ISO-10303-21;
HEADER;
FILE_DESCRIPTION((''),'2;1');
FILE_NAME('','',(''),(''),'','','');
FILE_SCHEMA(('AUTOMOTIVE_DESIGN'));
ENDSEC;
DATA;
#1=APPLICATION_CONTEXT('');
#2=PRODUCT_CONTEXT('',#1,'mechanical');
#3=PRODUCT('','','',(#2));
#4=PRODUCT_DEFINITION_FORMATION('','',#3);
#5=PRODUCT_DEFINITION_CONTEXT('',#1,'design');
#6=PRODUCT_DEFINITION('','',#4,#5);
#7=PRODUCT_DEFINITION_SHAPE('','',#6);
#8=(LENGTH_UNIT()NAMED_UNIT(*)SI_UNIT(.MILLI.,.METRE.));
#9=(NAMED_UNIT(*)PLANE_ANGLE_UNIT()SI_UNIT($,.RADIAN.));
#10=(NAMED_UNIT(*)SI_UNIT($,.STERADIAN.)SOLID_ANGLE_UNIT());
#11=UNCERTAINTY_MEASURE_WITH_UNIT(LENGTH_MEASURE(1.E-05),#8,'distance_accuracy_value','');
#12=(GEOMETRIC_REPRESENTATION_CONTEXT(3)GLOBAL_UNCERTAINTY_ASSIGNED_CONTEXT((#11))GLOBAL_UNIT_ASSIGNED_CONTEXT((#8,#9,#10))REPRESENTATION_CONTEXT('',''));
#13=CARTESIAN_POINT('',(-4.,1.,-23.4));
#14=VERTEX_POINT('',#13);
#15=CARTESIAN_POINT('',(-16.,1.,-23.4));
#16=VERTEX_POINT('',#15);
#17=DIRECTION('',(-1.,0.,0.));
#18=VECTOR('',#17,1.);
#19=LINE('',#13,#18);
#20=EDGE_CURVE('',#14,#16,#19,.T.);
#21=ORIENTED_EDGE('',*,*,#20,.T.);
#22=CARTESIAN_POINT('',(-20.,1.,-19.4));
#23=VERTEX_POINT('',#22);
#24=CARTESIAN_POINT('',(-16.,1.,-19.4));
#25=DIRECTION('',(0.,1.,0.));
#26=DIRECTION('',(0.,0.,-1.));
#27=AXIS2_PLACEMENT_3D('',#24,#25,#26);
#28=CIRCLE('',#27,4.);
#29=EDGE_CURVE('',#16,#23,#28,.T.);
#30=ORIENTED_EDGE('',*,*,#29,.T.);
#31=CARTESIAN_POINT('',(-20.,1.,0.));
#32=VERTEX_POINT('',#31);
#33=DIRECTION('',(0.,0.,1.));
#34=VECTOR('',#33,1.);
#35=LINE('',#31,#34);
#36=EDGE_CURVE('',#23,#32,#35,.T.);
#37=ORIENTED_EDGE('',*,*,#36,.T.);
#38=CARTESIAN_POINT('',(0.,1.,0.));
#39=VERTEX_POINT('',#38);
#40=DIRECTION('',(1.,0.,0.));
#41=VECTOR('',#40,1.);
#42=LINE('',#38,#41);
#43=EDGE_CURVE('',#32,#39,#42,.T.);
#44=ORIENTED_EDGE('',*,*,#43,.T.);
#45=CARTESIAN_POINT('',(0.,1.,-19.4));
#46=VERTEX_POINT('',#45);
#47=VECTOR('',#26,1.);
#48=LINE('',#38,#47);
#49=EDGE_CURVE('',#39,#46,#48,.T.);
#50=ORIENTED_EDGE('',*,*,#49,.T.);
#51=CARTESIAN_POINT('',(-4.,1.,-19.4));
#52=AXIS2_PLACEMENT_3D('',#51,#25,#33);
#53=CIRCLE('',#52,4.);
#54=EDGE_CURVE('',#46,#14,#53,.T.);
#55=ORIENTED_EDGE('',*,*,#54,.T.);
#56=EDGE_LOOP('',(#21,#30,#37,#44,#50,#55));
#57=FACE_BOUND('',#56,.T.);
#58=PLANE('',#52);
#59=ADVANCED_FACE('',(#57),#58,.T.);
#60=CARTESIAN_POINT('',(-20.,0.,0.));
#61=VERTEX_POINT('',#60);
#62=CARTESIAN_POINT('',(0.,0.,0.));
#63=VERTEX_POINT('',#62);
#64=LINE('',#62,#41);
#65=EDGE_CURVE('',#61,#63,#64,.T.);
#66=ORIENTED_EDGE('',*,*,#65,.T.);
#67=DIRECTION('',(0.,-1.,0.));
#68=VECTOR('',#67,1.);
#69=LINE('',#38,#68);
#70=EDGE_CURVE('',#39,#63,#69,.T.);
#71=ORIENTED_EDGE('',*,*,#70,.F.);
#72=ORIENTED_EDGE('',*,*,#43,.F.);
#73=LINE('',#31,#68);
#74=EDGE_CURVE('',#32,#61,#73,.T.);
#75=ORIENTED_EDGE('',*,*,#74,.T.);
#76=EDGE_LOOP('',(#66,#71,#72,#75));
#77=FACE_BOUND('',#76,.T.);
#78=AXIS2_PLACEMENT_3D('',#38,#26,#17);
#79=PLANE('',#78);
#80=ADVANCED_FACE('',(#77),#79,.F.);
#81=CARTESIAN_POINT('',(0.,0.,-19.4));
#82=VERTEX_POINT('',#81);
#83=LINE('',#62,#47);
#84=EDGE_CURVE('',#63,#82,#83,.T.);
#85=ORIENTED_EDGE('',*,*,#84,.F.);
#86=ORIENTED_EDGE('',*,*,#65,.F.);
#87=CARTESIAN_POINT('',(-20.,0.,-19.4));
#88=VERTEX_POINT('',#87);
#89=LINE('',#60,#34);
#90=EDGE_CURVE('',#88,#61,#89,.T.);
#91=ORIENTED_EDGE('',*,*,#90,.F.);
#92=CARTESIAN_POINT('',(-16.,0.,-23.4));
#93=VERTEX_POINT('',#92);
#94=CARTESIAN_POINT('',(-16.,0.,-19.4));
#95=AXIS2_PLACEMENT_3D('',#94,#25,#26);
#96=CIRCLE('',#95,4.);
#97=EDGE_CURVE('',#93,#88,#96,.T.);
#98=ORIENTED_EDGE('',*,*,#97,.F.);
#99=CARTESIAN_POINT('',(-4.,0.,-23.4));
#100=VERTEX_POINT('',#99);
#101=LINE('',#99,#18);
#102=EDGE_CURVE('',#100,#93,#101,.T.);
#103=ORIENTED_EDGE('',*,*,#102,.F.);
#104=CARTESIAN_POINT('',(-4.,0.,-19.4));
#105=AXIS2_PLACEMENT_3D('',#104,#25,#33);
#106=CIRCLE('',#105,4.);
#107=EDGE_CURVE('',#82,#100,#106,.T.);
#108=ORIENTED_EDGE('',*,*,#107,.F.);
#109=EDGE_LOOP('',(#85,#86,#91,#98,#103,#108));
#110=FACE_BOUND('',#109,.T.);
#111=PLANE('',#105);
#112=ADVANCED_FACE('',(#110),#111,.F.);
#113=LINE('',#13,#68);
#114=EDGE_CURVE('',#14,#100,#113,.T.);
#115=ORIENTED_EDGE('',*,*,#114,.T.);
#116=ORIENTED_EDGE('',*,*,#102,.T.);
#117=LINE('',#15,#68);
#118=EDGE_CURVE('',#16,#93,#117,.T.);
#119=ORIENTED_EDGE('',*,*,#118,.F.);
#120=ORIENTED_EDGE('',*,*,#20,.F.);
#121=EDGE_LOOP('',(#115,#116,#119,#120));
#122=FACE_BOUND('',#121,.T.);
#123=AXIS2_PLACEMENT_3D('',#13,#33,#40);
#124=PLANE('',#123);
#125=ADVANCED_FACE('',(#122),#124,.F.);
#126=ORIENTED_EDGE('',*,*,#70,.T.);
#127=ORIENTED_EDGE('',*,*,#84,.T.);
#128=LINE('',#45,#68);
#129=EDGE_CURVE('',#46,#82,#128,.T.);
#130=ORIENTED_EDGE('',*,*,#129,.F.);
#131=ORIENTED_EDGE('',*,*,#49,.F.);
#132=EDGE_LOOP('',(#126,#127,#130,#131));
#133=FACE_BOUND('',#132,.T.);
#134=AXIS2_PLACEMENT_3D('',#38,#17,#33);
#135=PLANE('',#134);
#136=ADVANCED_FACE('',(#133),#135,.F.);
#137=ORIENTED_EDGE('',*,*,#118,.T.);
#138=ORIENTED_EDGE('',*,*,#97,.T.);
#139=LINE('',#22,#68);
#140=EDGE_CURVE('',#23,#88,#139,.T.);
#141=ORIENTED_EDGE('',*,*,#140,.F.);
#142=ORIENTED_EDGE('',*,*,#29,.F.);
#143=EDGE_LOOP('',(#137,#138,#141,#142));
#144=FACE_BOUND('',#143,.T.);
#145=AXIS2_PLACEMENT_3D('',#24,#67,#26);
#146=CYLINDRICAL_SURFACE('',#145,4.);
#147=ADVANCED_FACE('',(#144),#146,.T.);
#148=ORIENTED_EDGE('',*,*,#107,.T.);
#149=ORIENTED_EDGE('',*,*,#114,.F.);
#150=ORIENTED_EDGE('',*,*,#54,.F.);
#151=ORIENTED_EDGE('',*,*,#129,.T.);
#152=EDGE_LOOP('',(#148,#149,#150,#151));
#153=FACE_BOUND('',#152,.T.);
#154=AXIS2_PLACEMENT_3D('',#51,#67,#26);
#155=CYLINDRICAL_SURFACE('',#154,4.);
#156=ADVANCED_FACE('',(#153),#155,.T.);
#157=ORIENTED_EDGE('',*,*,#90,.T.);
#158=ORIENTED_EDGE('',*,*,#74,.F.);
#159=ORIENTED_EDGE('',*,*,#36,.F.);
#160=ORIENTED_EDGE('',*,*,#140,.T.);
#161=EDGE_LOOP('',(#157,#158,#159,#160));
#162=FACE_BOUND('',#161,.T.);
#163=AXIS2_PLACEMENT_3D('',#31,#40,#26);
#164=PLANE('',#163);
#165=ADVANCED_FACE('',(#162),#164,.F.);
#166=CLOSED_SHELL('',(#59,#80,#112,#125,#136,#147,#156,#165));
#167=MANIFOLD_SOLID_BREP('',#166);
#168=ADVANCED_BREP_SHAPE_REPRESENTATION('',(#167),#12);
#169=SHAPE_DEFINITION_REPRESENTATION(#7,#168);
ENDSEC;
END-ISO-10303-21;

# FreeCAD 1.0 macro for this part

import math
import FreeCAD as App
import Part
import Sketcher
from FreeCAD import Vector

doc = App.newDocument("Part")
body = doc.addObject("PartDesign::Body", "Body")

# Sketch on XZ plane
sketch1 = doc.addObject("Sketcher::SketchObject", "Sketch")
body.addObject(sketch1)
sketch1.AttachmentSupport = (doc.XZ_Plane, [""])
sketch1.MapMode = "FlatFace"
sketch1.addGeometry([
    Part.LineSegment(Vector(-20, 0, 0), Vector(0, 0, 0)),  # 0
    Part.LineSegment(Vector(0, 0, 0), Vector(0, -19.4, 0)),  # 1
    Part.ArcOfCircle(Part.Circle(Vector(-4, -19.4, 0), Vector(0, 0, 1), 4), math.radians(-90), math.radians(0)),  # 2
    Part.LineSegment(Vector(-4, -23.4, 0), Vector(-16, -23.4, 0)),  # 3
    Part.ArcOfCircle(Part.Circle(Vector(-16, -19.4, 0), Vector(0, 0, 1), 4), math.radians(180), math.radians(270)),  # 4
    Part.LineSegment(Vector(-20, -19.4, 0), Vector(-20, 0, 0)),  # 5
], False)
sketch1.addConstraint([
    Sketcher.Constraint("Coincident", 0, 2, 1, 1),
    Sketcher.Constraint("Tangent", 1, 2, 2, 2),
    Sketcher.Constraint("Tangent", 2, 1, 3, 1),
    Sketcher.Constraint("Tangent", 3, 2, 4, 2),
    Sketcher.Constraint("Tangent", 4, 1, 5, 1),
    Sketcher.Constraint("Coincident", 5, 2, 0, 1),
    Sketcher.Constraint("Horizontal", 0),
    Sketcher.Constraint("Vertical", 1),
    Sketcher.Constraint("Horizontal", 3),
    Sketcher.Constraint("Vertical", 5),
    Sketcher.Constraint("Coincident", 0, 2, -1, 1),
    Sketcher.Constraint("Equal", 2, 4),
    Sketcher.Constraint("Radius", 2, 4.0),
    Sketcher.Constraint("DistanceX", 0, 1, 0, 2, 20.0),
    Sketcher.Constraint("DistanceY", 1, 2, 1, 1, 19.4),
])
pad1 = doc.addObject("PartDesign::Pad", "Pad")
body.addObject(pad1)
pad1.Profile = sketch1
pad1.Length = 1
pad1.Reversed = True

doc.recompute()
